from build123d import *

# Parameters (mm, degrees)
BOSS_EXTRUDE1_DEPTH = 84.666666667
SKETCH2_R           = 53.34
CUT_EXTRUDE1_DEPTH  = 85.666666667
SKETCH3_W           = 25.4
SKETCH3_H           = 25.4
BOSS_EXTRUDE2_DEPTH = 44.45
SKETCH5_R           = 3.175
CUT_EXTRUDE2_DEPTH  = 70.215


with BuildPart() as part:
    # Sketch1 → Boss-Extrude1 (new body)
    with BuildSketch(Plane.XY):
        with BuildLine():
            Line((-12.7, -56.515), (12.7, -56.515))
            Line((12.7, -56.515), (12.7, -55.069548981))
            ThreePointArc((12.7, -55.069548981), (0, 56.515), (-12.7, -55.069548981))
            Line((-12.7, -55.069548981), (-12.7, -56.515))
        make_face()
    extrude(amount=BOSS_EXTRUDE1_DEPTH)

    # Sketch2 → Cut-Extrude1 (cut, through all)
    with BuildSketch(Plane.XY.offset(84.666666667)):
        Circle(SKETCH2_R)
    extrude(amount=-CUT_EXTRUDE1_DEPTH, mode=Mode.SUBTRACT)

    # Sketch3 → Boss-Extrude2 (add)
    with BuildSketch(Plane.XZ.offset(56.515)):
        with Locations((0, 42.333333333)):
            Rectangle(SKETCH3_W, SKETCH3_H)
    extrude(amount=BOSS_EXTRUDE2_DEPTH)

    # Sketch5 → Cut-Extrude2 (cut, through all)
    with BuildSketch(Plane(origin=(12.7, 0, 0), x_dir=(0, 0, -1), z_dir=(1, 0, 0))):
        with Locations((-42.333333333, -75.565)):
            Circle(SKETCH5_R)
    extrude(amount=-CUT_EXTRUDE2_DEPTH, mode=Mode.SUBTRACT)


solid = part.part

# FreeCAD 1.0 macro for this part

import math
import FreeCAD as App
import Part
import Sketcher

V = App.Vector
Q = App.Units.Quantity

doc = App.newDocument("Part")
body = doc.addObject("PartDesign::Body", "Body")

# Sketch on XY plane
sketch1 = doc.addObject("Sketcher::SketchObject", "Sketch")
body.addObject(sketch1)
sketch1.AttachmentSupport = (doc.XY_Plane, [""])
sketch1.MapMode = "FlatFace"
sketch1.addGeometry([
    Part.LineSegment(V(-12.7, -56.5, 0), V(12.7, -56.5, 0)),
    Part.LineSegment(V(12.7, -56.5, 0), V(12.7, -55.1, 0)),
    Part.ArcOfCircle(Part.Circle(V(0, 0, 0), V(0, 0, 1), 56.5), math.radians(-77), math.radians(257)),
    Part.LineSegment(V(-12.7, -55.1, 0), V(-12.7, -56.5, 0)),
], False)
sketch1.addConstraint([
    Sketcher.Constraint("Coincident", 0, 2, 1, 1),
    Sketcher.Constraint("Coincident", 1, 2, 2, 1),
    Sketcher.Constraint("Coincident", 2, 2, 3, 1),
    Sketcher.Constraint("Coincident", 3, 2, 0, 1),
    Sketcher.Constraint("Horizontal", 0),
    Sketcher.Constraint("Vertical", 1),
    Sketcher.Constraint("Vertical", 3),
    Sketcher.Constraint("Coincident", 2, 3, -1, 1),
    Sketcher.Constraint("Horizontal", 1, 2, 2, 2),
    Sketcher.Constraint("DistanceX", 0, 1, 0, 2, Q("1 in")),
    Sketcher.Constraint("Radius", 2, Q("2.225 in")),
    Sketcher.Constraint("DistanceY", 0, 2, -1, 1, Q("2.225 in")),
])
pad1 = doc.addObject("PartDesign::Pad", "Pad")
body.addObject(pad1)
pad1.Profile = sketch1
pad1.Length = 84.666667

# Sketch on XY plane
sketch2 = doc.addObject("Sketcher::SketchObject", "Sketch001")
body.addObject(sketch2)
sketch2.AttachmentSupport = (doc.XY_Plane, [""])
sketch2.MapMode = "FlatFace"
sketch2.AttachmentOffset = App.Placement(V(0, 0, 84.666667), App.Rotation())
sketch2.addGeometry(Part.Circle(V(0, 0, 0), V(0, 0, 1), 53), False)
sketch2.addConstraint([
    Sketcher.Constraint("Coincident", 0, 3, -1, 1),
    Sketcher.Constraint("Diameter", 0, Q("4.2 in")),
])
pocket1 = doc.addObject("PartDesign::Pocket", "Pocket")
body.addObject(pocket1)
pocket1.Profile = sketch2
pocket1.Type = "ThroughAll"

# Sketch on XZ plane
sketch3 = doc.addObject("Sketcher::SketchObject", "Sketch002")
body.addObject(sketch3)
sketch3.AttachmentSupport = (doc.XZ_Plane, [""])
sketch3.MapMode = "FlatFace"
sketch3.AttachmentOffset = App.Placement(V(0, 0, 2.225 * 25.4), App.Rotation())
sketch3.addGeometry([
    Part.LineSegment(V(-13, 55, 0), V(-13, 30, 0)),
    Part.LineSegment(V(-13, 30, 0), V(13, 30, 0)),
    Part.LineSegment(V(13, 30, 0), V(13, 55, 0)),
    Part.LineSegment(V(13, 55, 0), V(-13, 55, 0)),
], False)
sketch3.addConstraint([
    Sketcher.Constraint("Coincident", 0, 2, 1, 1),
    Sketcher.Constraint("Coincident", 1, 2, 2, 1),
    Sketcher.Constraint("Coincident", 2, 2, 3, 1),
    Sketcher.Constraint("Coincident", 3, 2, 0, 1),
    Sketcher.Constraint("Vertical", 0),
    Sketcher.Constraint("Horizontal", 1),
    Sketcher.Constraint("Vertical", 2),
    Sketcher.Constraint("Horizontal", 3),
    Sketcher.Constraint("Equal", 3, 0),
    Sketcher.Constraint("DistanceX", 1, 1, 1, 2, Q("1 in")),
    Sketcher.Constraint("DistanceX", 0, 2, -1, 1, Q("0.5 in")),
    Sketcher.Constraint("DistanceY", -1, 1, 0, 2, 29.633333),
])
pad2 = doc.addObject("PartDesign::Pad", "Pad001")
body.addObject(pad2)
pad2.Profile = sketch3
pad2.Length = Q("1.75 in")

# Sketch on YZ plane
sketch4 = doc.addObject("Sketcher::SketchObject", "Sketch003")
body.addObject(sketch4)
sketch4.AttachmentSupport = (doc.YZ_Plane, [""])
sketch4.MapMode = "FlatFace"
sketch4.AttachmentOffset = App.Placement(V(0, 0, 0.5 * 25.4), App.Rotation())
sketch4.addGeometry(Part.Circle(V(-75.6, 42.3, 0), V(0, 0, 1), 3.2), False)
sketch4.addConstraint([
    Sketcher.Constraint("Diameter", 0, Q("0.25 in")),
    Sketcher.Constraint("DistanceX", 0, 3, -1, 1, Q("2.975 in")),
    Sketcher.Constraint("DistanceY", -1, 1, 0, 3, 42.333333),
])
pocket2 = doc.addObject("PartDesign::Pocket", "Pocket001")
body.addObject(pocket2)
pocket2.Profile = sketch4
pocket2.Type = "ThroughAll"

doc.recompute()
